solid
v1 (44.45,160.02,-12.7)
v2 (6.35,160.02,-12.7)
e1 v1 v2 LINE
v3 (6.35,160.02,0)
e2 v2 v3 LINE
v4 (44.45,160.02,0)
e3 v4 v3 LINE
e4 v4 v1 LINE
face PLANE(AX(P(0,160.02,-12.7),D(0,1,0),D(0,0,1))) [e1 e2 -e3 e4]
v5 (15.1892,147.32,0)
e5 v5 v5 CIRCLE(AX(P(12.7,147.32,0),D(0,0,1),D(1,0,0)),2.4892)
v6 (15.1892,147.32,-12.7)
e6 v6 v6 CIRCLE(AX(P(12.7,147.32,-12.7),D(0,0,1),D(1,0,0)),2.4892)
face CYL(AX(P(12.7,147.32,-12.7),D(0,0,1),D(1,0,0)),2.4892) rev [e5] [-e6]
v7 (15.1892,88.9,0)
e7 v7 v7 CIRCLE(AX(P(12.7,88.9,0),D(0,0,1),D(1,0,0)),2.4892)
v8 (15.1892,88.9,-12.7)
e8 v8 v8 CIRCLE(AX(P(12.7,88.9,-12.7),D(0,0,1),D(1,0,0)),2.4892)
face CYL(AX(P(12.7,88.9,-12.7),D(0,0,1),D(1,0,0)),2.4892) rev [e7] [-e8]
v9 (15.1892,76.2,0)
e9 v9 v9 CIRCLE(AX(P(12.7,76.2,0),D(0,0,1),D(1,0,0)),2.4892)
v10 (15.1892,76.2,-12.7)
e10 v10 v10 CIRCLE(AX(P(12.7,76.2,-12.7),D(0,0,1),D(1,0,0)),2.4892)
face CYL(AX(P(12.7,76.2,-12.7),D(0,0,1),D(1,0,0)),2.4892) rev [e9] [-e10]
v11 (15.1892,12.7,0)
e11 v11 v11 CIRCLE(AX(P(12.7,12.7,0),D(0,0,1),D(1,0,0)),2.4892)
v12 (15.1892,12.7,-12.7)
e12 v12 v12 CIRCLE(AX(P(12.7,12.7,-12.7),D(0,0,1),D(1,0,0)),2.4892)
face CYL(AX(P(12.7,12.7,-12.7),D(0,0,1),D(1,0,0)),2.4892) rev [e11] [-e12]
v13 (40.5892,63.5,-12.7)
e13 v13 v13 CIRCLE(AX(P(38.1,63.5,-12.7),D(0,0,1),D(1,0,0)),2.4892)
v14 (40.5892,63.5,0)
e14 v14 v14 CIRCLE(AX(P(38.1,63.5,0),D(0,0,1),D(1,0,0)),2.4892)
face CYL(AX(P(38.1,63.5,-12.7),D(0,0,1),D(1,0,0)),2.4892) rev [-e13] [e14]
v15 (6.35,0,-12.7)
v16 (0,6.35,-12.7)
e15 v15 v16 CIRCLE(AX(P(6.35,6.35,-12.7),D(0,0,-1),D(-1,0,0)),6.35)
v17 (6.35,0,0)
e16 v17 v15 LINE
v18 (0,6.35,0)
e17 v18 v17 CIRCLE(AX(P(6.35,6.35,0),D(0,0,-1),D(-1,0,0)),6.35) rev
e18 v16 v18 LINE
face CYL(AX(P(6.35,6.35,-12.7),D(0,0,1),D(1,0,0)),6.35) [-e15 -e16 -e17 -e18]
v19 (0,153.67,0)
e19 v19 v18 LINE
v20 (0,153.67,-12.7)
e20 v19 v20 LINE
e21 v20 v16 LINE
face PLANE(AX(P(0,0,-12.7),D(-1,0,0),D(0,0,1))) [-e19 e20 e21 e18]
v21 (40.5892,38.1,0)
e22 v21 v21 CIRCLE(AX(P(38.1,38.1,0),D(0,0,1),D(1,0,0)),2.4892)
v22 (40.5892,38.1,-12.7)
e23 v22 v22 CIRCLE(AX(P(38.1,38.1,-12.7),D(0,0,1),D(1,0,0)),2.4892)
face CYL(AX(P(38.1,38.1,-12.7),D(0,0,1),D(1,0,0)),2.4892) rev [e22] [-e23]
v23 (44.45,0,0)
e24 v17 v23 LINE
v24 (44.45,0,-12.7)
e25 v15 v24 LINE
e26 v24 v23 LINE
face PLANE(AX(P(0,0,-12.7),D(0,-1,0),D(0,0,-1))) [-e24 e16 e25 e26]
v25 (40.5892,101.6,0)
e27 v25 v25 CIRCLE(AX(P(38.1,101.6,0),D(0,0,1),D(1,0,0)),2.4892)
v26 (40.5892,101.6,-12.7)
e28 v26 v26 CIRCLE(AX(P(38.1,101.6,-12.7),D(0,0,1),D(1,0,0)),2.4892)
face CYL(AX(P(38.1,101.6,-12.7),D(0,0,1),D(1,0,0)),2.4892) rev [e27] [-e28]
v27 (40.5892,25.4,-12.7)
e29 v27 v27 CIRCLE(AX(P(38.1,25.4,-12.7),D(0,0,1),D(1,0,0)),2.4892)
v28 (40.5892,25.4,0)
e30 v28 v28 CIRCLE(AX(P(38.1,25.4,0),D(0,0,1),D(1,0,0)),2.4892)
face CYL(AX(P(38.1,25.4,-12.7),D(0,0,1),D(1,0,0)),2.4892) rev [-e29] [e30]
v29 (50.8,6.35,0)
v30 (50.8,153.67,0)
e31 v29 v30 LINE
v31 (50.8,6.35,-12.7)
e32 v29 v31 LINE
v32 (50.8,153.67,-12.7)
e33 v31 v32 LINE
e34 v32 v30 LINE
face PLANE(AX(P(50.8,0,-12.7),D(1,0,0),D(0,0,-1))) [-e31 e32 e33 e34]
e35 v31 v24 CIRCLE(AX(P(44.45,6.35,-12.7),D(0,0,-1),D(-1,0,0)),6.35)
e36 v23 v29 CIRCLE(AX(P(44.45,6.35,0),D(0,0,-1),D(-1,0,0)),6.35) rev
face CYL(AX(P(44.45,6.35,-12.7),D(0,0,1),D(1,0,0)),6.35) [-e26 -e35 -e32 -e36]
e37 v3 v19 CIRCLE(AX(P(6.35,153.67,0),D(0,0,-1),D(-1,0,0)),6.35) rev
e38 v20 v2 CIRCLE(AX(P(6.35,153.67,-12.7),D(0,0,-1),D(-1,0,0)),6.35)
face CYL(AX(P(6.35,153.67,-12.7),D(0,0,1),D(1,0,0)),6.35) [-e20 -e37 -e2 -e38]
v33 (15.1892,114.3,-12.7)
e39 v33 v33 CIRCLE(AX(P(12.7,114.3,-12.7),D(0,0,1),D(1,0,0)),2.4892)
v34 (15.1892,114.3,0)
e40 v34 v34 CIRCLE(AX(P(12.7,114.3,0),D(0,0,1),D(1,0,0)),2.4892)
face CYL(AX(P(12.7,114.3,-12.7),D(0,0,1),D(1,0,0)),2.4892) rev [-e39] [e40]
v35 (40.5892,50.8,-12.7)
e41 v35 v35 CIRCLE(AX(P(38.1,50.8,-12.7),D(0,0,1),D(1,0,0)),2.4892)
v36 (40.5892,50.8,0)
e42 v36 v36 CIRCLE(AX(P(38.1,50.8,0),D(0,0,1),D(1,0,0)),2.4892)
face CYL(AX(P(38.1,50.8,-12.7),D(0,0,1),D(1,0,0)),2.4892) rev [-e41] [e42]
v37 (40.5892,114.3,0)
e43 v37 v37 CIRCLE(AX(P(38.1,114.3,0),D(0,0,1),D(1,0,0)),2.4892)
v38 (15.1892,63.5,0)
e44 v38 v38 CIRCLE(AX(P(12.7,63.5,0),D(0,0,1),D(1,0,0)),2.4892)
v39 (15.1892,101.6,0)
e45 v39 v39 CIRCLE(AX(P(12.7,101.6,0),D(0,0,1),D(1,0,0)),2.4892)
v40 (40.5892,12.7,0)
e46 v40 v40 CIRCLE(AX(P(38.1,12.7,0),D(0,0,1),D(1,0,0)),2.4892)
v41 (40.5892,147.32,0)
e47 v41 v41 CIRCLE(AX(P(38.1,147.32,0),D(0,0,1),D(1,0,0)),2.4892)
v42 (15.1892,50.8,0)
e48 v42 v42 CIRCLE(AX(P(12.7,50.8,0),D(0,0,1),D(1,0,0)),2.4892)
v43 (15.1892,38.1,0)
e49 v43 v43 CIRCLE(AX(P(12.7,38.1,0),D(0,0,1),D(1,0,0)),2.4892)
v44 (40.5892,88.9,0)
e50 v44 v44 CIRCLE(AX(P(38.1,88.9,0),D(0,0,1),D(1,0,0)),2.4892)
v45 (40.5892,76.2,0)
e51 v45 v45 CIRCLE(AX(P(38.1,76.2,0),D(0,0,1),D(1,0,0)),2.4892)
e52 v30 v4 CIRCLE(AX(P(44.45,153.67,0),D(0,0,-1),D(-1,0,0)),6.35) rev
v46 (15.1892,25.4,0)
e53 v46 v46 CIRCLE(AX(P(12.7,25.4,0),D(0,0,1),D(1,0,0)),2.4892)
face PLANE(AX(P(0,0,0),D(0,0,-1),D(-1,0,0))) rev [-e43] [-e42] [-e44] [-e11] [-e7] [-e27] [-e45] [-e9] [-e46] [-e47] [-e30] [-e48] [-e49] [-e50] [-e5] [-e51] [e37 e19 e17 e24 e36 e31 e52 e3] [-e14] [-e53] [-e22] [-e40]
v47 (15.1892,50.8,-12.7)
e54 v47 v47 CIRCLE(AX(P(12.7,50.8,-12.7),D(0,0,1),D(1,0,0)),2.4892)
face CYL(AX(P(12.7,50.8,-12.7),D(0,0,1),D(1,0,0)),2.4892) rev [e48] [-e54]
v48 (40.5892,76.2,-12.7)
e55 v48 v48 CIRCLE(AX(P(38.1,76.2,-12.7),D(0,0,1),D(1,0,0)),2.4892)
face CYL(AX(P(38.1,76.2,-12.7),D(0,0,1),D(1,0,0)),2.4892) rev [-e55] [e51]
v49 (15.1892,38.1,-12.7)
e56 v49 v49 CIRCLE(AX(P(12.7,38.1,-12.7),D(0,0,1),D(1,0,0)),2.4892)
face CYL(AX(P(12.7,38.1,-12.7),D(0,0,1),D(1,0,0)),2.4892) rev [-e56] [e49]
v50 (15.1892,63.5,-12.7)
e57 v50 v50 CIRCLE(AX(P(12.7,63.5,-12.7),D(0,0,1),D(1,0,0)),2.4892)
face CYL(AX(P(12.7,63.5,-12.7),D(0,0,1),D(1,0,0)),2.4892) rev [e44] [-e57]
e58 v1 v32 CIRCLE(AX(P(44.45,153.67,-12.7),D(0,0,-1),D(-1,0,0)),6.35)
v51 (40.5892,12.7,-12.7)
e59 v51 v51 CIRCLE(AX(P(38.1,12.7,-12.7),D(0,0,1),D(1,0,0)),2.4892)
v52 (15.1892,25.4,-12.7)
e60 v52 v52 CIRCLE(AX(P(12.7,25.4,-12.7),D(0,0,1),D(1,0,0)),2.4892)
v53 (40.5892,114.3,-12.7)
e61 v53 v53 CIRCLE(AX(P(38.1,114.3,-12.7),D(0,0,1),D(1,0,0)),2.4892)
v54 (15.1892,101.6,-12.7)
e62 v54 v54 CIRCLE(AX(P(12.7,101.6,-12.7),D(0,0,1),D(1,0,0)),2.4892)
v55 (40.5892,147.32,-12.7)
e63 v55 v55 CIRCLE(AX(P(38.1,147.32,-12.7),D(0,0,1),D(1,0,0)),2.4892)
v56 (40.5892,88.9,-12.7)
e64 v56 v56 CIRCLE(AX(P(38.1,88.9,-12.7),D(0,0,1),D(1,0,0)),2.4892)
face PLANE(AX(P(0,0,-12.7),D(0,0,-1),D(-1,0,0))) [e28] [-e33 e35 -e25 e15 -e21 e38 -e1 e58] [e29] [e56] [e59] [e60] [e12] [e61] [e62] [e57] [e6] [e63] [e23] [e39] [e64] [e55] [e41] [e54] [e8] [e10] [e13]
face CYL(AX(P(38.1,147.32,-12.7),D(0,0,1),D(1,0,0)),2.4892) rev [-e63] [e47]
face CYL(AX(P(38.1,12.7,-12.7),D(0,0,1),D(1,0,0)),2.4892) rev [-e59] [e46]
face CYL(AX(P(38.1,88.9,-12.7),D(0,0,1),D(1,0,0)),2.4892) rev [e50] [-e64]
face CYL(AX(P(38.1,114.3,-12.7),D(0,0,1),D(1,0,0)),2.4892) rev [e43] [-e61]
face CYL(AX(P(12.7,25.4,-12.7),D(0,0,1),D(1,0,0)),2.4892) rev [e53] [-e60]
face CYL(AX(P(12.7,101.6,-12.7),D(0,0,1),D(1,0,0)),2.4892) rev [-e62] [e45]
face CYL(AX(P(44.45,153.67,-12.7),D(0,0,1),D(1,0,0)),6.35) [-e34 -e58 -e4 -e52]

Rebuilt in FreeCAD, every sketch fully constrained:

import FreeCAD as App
import Part
import Sketcher
Q = App.Units.Quantity


def edges_at(feature, points):
    """Names of the edges that pass closest to the given points."""
    edges = feature.Shape.Edges
    near = lambda p: min(range(len(edges)), key=lambda i: edges[i].distToShape(Part.Vertex(*p))[0])
    return sorted({f"Edge{near(p) + 1}" for p in points})


def add_polygon(sketch, points):
    """Adds a closed chain of lines whose ends are joined by coincident constraints."""
    first, n = sketch.GeometryCount, len(points)
    for a, b in zip(points, points[1:] + points[:1]):
        sketch.addGeometry(Part.LineSegment(App.Vector(*a, 0), App.Vector(*b, 0)), False)
    for i in range(n):
        sketch.addConstraint(Sketcher.Constraint("Coincident", first + i, 2, first + (i + 1) % n, 1))

doc = App.newDocument("Part")
body = doc.addObject("PartDesign::Body", "Body")

sketch1 = body.newObject("Sketcher::SketchObject", "Sketch")
sketch1.AttachmentSupport = (doc.getObject("XY_Plane"), [""])
sketch1.MapMode = "FlatFace"
add_polygon(sketch1, [(0, 160.02), (0, 0), (50.8, 0), (50.8, 160.02)])
sketch1.addConstraint([
    Sketcher.Constraint("Vertical", 0),
    Sketcher.Constraint("Horizontal", 1),
    Sketcher.Constraint("Vertical", 2),
    Sketcher.Constraint("Horizontal", 3),
    Sketcher.Constraint("Coincident", 0, 2, -1, 1),
    Sketcher.Constraint("DistanceX", 1, 1, 1, 2, Q("2 in")),
    Sketcher.Constraint("DistanceY", 0, 2, 0, 1, Q("6.3 in")),
])
pad1 = body.newObject("PartDesign::Pad", "Pad")
pad1.Profile = sketch1
pad1.Length = Q("0.5 in")
pad1.Reversed = True

sketch2 = body.newObject("Sketcher::SketchObject", "Sketch001")
sketch2.AttachmentSupport = (doc.getObject("XY_Plane"), [""])
sketch2.MapMode = "FlatFace"
sketch2.addGeometry([
    Part.Circle(App.Vector(12.7, 147.32, 0), App.Vector(0, 0, 1), 2.4892),
    Part.Circle(App.Vector(38.1, 147.32, 0), App.Vector(0, 0, 1), 2.4892),
    Part.Circle(App.Vector(12.7, 114.3, 0), App.Vector(0, 0, 1), 2.4892),
    Part.Circle(App.Vector(12.7, 101.6, 0), App.Vector(0, 0, 1), 2.4892),
    Part.Circle(App.Vector(12.7, 88.9, 0), App.Vector(0, 0, 1), 2.4892),
    Part.Circle(App.Vector(12.7, 76.2, 0), App.Vector(0, 0, 1), 2.4892),
    Part.Circle(App.Vector(12.7, 63.5, 0), App.Vector(0, 0, 1), 2.4892),
    Part.Circle(App.Vector(12.7, 50.8, 0), App.Vector(0, 0, 1), 2.4892),
    Part.Circle(App.Vector(12.7, 38.1, 0), App.Vector(0, 0, 1), 2.4892),
    Part.Circle(App.Vector(12.7, 25.4, 0), App.Vector(0, 0, 1), 2.4892),
    Part.Circle(App.Vector(12.7, 12.7, 0), App.Vector(0, 0, 1), 2.4892),
    Part.Circle(App.Vector(38.1, 101.6, 0), App.Vector(0, 0, 1), 2.4892),
    Part.Circle(App.Vector(38.1, 88.9, 0), App.Vector(0, 0, 1), 2.4892),
    Part.Circle(App.Vector(38.1, 76.2, 0), App.Vector(0, 0, 1), 2.4892),
    Part.Circle(App.Vector(38.1, 63.5, 0), App.Vector(0, 0, 1), 2.4892),
    Part.Circle(App.Vector(38.1, 50.8, 0), App.Vector(0, 0, 1), 2.4892),
    Part.Circle(App.Vector(38.1, 38.1, 0), App.Vector(0, 0, 1), 2.4892),
    Part.Circle(App.Vector(38.1, 25.4, 0), App.Vector(0, 0, 1), 2.4892),
    Part.Circle(App.Vector(38.1, 12.7, 0), App.Vector(0, 0, 1), 2.4892),
    Part.Circle(App.Vector(38.1, 114.3, 0), App.Vector(0, 0, 1), 2.4892),
], False)
sketch2.addConstraint([
    Sketcher.Constraint("Equal", 0, 1),
    Sketcher.Constraint("Equal", 1, 2),
    Sketcher.Constraint("Equal", 2, 3),
    Sketcher.Constraint("Equal", 3, 4),
    Sketcher.Constraint("Equal", 4, 5),
    Sketcher.Constraint("Equal", 5, 6),
    Sketcher.Constraint("Equal", 6, 7),
    Sketcher.Constraint("Equal", 7, 8),
    Sketcher.Constraint("Equal", 8, 9),
    Sketcher.Constraint("Equal", 9, 10),
    Sketcher.Constraint("Equal", 10, 11),
    Sketcher.Constraint("Equal", 11, 12),
    Sketcher.Constraint("Equal", 12, 13),
    Sketcher.Constraint("Equal", 13, 14),
    Sketcher.Constraint("Equal", 14, 15),
    Sketcher.Constraint("Equal", 15, 16),
    Sketcher.Constraint("Equal", 16, 17),
    Sketcher.Constraint("Equal", 17, 18),
    Sketcher.Constraint("Equal", 18, 19),
    Sketcher.Constraint("Horizontal", 0, 3, 1, 3),
    Sketcher.Constraint("Horizontal", 3, 3, 11, 3),
    Sketcher.Constraint("Horizontal", 4, 3, 12, 3),
    Sketcher.Constraint("Horizontal", 5, 3, 13, 3),
    Sketcher.Constraint("Horizontal", 6, 3, 14, 3),
    Sketcher.Constraint("Horizontal", 7, 3, 15, 3),
    Sketcher.Constraint("Horizontal", 8, 3, 16, 3),
    Sketcher.Constraint("Horizontal", 9, 3, 17, 3),
    Sketcher.Constraint("Horizontal", 10, 3, 18, 3),
    Sketcher.Constraint("Horizontal", 2, 3, 19, 3),
    Sketcher.Constraint("Vertical", 0, 3, 2, 3),
    Sketcher.Constraint("Vertical", 2, 3, 3, 3),
    Sketcher.Constraint("Vertical", 3, 3, 4, 3),
    Sketcher.Constraint("Vertical", 4, 3, 5, 3),
    Sketcher.Constraint("Vertical", 5, 3, 6, 3),
    Sketcher.Constraint("Vertical", 6, 3, 7, 3),
    Sketcher.Constraint("Vertical", 7, 3, 8, 3),
    Sketcher.Constraint("Vertical", 8, 3, 9, 3),
    Sketcher.Constraint("Vertical", 9, 3, 10, 3),
    Sketcher.Constraint("Vertical", 1, 3, 11, 3),
    Sketcher.Constraint("Vertical", 11, 3, 12, 3),
    Sketcher.Constraint("Vertical", 12, 3, 13, 3),
    Sketcher.Constraint("Vertical", 13, 3, 14, 3),
    Sketcher.Constraint("Vertical", 14, 3, 15, 3),
    Sketcher.Constraint("Vertical", 15, 3, 16, 3),
    Sketcher.Constraint("Vertical", 16, 3, 17, 3),
    Sketcher.Constraint("Vertical", 17, 3, 18, 3),
    Sketcher.Constraint("Vertical", 18, 3, 19, 3),
    Sketcher.Constraint("Diameter", 0, Q("0.196 in")),
    Sketcher.Constraint("DistanceY", -1, 1, 3, 3, Q("4 in")),
    Sketcher.Constraint("DistanceY", -1, 1, 5, 3, Q("3 in")),
    Sketcher.Constraint("DistanceY", -1, 1, 7, 3, Q("2 in")),
    Sketcher.Constraint("DistanceY", -1, 1, 9, 3, Q("1 in")),
    Sketcher.Constraint("DistanceX", 0, 3, 1, 3, Q("1 in")),
    Sketcher.Constraint("DistanceY", 4, 3, 2, 3, Q("1 in")),
    Sketcher.Constraint("DistanceY", 6, 3, 4, 3, Q("1 in")),
    Sketcher.Constraint("DistanceY", 8, 3, 6, 3, Q("1 in")),
    Sketcher.Constraint("DistanceY", 10, 3, 8, 3, Q("1 in")),
    Sketcher.Constraint("DistanceX", -1, 1, 0, 3, Q("0.5 in")),
    Sketcher.Constraint("DistanceY", -1, 1, 0, 3, Q("5.8 in")),
    Sketcher.Constraint("DistanceY", -1, 1, 2, 3, Q("4.5 in")),
])
pocket1 = body.newObject("PartDesign::Pocket", "Pocket")
pocket1.Profile = sketch2
pocket1.Type = "ThroughAll"
doc.recompute()

fillet = body.newObject("PartDesign::Fillet", "Fillet")
fillet.Base = (pocket1, edges_at(pocket1, [
    (0, 160.02, -6.35),
    (50.8, 160.02, -6.35),
    (50.8, 0, -6.35),
    (0, 0, -6.35),
]))
fillet.Radius = Q("0.25 in")

doc.recompute()
